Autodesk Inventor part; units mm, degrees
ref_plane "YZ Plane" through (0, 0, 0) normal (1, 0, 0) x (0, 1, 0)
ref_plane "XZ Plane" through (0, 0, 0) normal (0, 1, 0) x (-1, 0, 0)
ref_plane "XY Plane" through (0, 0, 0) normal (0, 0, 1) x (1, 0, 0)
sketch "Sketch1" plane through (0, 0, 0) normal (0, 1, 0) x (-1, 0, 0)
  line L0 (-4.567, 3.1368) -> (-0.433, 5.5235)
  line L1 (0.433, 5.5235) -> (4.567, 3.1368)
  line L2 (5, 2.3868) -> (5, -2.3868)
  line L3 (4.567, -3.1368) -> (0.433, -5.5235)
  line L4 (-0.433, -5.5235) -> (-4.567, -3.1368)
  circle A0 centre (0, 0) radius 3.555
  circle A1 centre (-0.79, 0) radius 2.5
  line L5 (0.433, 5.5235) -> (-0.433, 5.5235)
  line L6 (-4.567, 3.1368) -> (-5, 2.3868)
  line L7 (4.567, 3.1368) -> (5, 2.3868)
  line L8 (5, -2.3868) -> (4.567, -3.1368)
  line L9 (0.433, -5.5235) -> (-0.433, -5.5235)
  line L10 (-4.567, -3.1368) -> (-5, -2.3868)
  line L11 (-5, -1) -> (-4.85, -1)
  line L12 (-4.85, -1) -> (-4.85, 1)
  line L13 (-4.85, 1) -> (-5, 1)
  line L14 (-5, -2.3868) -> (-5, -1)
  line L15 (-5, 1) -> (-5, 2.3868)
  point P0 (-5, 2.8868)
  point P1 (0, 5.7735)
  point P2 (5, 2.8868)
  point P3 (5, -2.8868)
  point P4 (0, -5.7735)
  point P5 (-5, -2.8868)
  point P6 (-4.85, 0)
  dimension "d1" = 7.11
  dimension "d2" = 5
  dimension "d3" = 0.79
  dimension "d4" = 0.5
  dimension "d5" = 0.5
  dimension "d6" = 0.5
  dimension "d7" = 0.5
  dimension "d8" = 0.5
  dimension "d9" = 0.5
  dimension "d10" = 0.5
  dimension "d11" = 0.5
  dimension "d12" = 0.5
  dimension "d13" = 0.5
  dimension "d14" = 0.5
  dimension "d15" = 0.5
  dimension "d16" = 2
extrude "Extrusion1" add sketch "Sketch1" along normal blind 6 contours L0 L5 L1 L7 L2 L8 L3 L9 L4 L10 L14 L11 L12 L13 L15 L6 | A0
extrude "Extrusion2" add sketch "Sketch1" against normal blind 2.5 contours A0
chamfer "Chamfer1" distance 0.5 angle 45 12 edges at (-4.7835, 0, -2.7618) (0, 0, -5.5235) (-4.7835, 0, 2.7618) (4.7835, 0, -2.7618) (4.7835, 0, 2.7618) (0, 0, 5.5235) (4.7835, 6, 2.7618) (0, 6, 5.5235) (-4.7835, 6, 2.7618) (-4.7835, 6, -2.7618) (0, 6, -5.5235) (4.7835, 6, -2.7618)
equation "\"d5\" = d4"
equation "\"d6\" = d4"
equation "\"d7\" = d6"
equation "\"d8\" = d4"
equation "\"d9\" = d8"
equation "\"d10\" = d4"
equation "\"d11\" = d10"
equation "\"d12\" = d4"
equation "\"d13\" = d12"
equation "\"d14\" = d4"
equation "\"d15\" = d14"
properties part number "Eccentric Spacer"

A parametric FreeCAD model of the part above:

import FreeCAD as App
import Part
import Sketcher
Q = App.Units.Quantity


def edges_at(feature, points):
    """Names of the edges that pass closest to the given points."""
    edges = feature.Shape.Edges
    near = lambda p: min(range(len(edges)), key=lambda i: edges[i].distToShape(Part.Vertex(*p))[0])
    return sorted({f"Edge{near(p) + 1}" for p in points})

doc = App.newDocument("Part")
body = doc.addObject("PartDesign::Body", "Body")

# Sketch on XZ plane
sketch1 = body.newObject("Sketcher::SketchObject", "Sketch")
sketch1.AttachmentSupport = (doc.getObject("XZ_Plane"), [""])
sketch1.MapMode = "FlatFace"
sketch1.addGeometry([
    Part.LineSegment(App.Vector(0.43, 5.52, 0), App.Vector(4.57, 3.14, 0)),  # 0
    Part.LineSegment(App.Vector(4.57, 3.14, 0), App.Vector(5, 2.39, 0)),  # 1
    Part.LineSegment(App.Vector(5, 2.39, 0), App.Vector(5, 1, 0)),  # 2
    Part.LineSegment(App.Vector(5, 1, 0), App.Vector(4.85, 1, 0)),  # 3
    Part.LineSegment(App.Vector(4.85, 1, 0), App.Vector(4.85, -1, 0)),  # 4
    Part.LineSegment(App.Vector(4.85, -1, 0), App.Vector(5, -1, 0)),  # 5
    Part.LineSegment(App.Vector(5, -1, 0), App.Vector(5, -2.39, 0)),  # 6
    Part.LineSegment(App.Vector(5, -2.39, 0), App.Vector(4.57, -3.14, 0)),  # 7
    Part.LineSegment(App.Vector(4.57, -3.14, 0), App.Vector(0.43, -5.52, 0)),  # 8
    Part.LineSegment(App.Vector(0.43, -5.52, 0), App.Vector(-0.43, -5.52, 0)),  # 9
    Part.LineSegment(App.Vector(-0.43, -5.52, 0), App.Vector(-4.57, -3.14, 0)),  # 10
    Part.LineSegment(App.Vector(-4.57, -3.14, 0), App.Vector(-5, -2.39, 0)),  # 11
    Part.LineSegment(App.Vector(-5, -2.39, 0), App.Vector(-5, 2.39, 0)),  # 12
    Part.LineSegment(App.Vector(-5, 2.39, 0), App.Vector(-4.57, 3.14, 0)),  # 13
    Part.LineSegment(App.Vector(-4.57, 3.14, 0), App.Vector(-0.43, 5.52, 0)),  # 14
    Part.LineSegment(App.Vector(-0.43, 5.52, 0), App.Vector(0.43, 5.52, 0)),  # 15
    Part.Circle(App.Vector(0.79, 0, 0), App.Vector(0, 0, 1), 2.5),  # 16
], False)
sketch1.addConstraint([
    Sketcher.Constraint("Coincident", 0, 2, 1, 1),
    Sketcher.Constraint("Coincident", 1, 2, 2, 1),
    Sketcher.Constraint("Coincident", 2, 2, 3, 1),
    Sketcher.Constraint("Coincident", 3, 2, 4, 1),
    Sketcher.Constraint("Coincident", 4, 2, 5, 1),
    Sketcher.Constraint("Coincident", 5, 2, 6, 1),
    Sketcher.Constraint("Coincident", 6, 2, 7, 1),
    Sketcher.Constraint("Coincident", 7, 2, 8, 1),
    Sketcher.Constraint("Coincident", 8, 2, 9, 1),
    Sketcher.Constraint("Coincident", 9, 2, 10, 1),
    Sketcher.Constraint("Coincident", 10, 2, 11, 1),
    Sketcher.Constraint("Coincident", 11, 2, 12, 1),
    Sketcher.Constraint("Coincident", 12, 2, 13, 1),
    Sketcher.Constraint("Coincident", 13, 2, 14, 1),
    Sketcher.Constraint("Coincident", 14, 2, 15, 1),
    Sketcher.Constraint("Coincident", 15, 2, 0, 1),
    Sketcher.Constraint("Vertical", 2),
    Sketcher.Constraint("Horizontal", 3),
    Sketcher.Constraint("Vertical", 4),
    Sketcher.Constraint("Horizontal", 5),
    Sketcher.Constraint("Vertical", 6),
    Sketcher.Constraint("Horizontal", 9),
    Sketcher.Constraint("Vertical", 12),
    Sketcher.Constraint("Horizontal", 15),
    Sketcher.Constraint("Symmetric", 0, 2, 10, 2, -1, 1),
    Sketcher.Constraint("Symmetric", 1, 2, 11, 2, -1, 1),
    Sketcher.Constraint("Symmetric", 6, 2, 12, 2, -1, 1),
    Sketcher.Constraint("Symmetric", 7, 2, 13, 2, -1, 1),
    Sketcher.Constraint("Symmetric", 8, 2, 14, 2, -1, 1),
    Sketcher.Constraint("Symmetric", 7, 2, 10, 2, -2),
    Sketcher.Constraint("PointOnObject", 16, 3, -1),
    Sketcher.Constraint("Perpendicular", 0, 7),
    Sketcher.Constraint("Perpendicular", 1, 8),
    Sketcher.Constraint("Perpendicular", 7, 10),
    Sketcher.Constraint("Horizontal", 6, 2, 11, 2),
    Sketcher.Constraint("Equal", 2, 6),
    Sketcher.Constraint("Diameter", 16, Q("5 mm")),
    Sketcher.Constraint("DistanceY", 4, 2, 4, 1, Q("2 mm")),
    Sketcher.Constraint("DistanceX", -1, 1, 1, 2, Q("5 mm")),
    Sketcher.Constraint("DistanceX", 9, 2, 7, 2, Q("5 mm")),
    Sketcher.Constraint("DistanceX", -1, 1, 16, 3, Q("0.79 mm")),
    Sketcher.Constraint("Angle", 0, Q("-29.9993 deg")),
    Sketcher.Constraint("DistanceX", 3, 2, 3, 1, Q("0.15 mm")),
    Sketcher.Constraint("DistanceX", 9, 2, 9, 1, Q("0.866 mm")),
    Sketcher.Constraint("DistanceY", 2, 2, 2, 1, Q("1.3868 mm")),
])
pad1 = body.newObject("PartDesign::Pad", "Pad")
pad1.Profile = sketch1
pad1.Length = 6
pad1.Reversed = True

# Sketch on XZ plane
sketch2 = body.newObject("Sketcher::SketchObject", "Sketch001")
sketch2.AttachmentSupport = (doc.getObject("XZ_Plane"), [""])
sketch2.MapMode = "FlatFace"
sketch2.addGeometry([
    Part.Circle(App.Vector(0, 0, 0), App.Vector(0, 0, 1), 3.6),
    Part.Circle(App.Vector(0.8, 0, 0), App.Vector(0, 0, 1), 2.5),
], False)
sketch2.addConstraint([
    Sketcher.Constraint("Coincident", 0, 3, -1, 1),
    Sketcher.Constraint("PointOnObject", 1, 3, -1),
    Sketcher.Constraint("Diameter", 1, Q("5 mm")),
    Sketcher.Constraint("Diameter", 0, Q("7.11 mm")),
    Sketcher.Constraint("DistanceX", -1, 1, 1, 3, Q("0.79 mm")),
])
pad2 = body.newObject("PartDesign::Pad", "Pad001")
pad2.Profile = sketch2
pad2.Length = 2.5
doc.recompute()

chamfer = body.newObject("PartDesign::Chamfer", "Chamfer")
chamfer.Base = (pad2, edges_at(pad2, [
    (-4.784, 0, -2.762),
    (0, 0, -5.524),
    (-4.784, 0, 2.762),
    (4.784, 0, -2.762),
    (4.784, 0, 2.762),
    (0, 0, 5.524),
    (4.784, 6, 2.762),
    (0, 6, 5.524),
    (-4.784, 6, 2.762),
    (-4.784, 6, -2.762),
    (0, 6, -5.524),
    (4.784, 6, -2.762),
]))
chamfer.Size = 0.5

doc.recompute()
